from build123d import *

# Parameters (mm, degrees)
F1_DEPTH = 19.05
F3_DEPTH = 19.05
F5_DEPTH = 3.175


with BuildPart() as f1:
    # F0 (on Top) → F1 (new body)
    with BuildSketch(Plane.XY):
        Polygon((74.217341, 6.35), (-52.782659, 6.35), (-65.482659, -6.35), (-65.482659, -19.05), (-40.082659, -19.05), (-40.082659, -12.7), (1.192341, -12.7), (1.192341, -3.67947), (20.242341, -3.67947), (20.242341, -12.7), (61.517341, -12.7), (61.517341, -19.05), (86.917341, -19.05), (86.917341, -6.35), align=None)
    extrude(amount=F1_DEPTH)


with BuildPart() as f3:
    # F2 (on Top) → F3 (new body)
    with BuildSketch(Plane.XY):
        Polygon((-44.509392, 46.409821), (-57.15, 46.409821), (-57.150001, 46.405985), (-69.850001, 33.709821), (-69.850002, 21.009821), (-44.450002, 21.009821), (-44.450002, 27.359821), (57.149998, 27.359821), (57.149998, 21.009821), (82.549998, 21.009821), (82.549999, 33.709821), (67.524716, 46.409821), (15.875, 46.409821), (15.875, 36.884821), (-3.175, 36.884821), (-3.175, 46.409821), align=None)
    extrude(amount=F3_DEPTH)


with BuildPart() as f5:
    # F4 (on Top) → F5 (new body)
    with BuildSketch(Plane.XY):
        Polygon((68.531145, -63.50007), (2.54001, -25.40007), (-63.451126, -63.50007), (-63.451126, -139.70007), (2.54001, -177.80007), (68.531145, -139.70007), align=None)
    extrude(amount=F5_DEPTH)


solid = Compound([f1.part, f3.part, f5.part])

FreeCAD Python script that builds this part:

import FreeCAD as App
import Part
import Sketcher
Q = App.Units.Quantity


def add_polygon(sketch, points):
    """Adds a closed chain of lines whose ends are joined by coincident constraints."""
    first, n = sketch.GeometryCount, len(points)
    for a, b in zip(points, points[1:] + points[:1]):
        sketch.addGeometry(Part.LineSegment(App.Vector(*a, 0), App.Vector(*b, 0)), False)
    for i in range(n):
        sketch.addConstraint(Sketcher.Constraint("Coincident", first + i, 2, first + (i + 1) % n, 1))

doc = App.newDocument("Part")
params = doc.addObject("Spreadsheet::Sheet", "Params")
for row, (alias, value) in enumerate([
    ("sketch1_width", "5 in"),
    ("sketch1_width2", "1 in"),
    ("sketch1_height", "0.5 in"),
    ("sketch1_width3", "0.75 in"),
    ("sketch1_height2", "0.25 in"),
    ("pad1_length", "0.75 in"),
    ("sketch2_width", "1 in"),
    ("sketch2_width2", "4 in"),
    ("sketch2_height", "0.5 in"),
    ("sketch2_width3", "0.75 in"),
    ("sketch2_height2", "0.25 in"),
    ("pad2_length", "0.75 in"),
    ("sketch3_height", "3 in"),
    ("sketch3_length", "3 in"),
    ("pad3_length", "0.125 in"),
], start=1):
    params.set(f"A{row}", alias)
    params.set(f"B{row}", "=" + value)
    params.setAlias(f"B{row}", alias)

body = doc.addObject("PartDesign::Body", "Body")

sketch1 = doc.addObject("Sketcher::SketchObject", "Sketch")
body.addObject(sketch1)
sketch1.AttachmentSupport = (doc.XY_Plane, [""])
sketch1.MapMode = "FlatFace"
add_polygon(sketch1, [(74.217341, 6.35), (-52.782659, 6.35), (-65.482659, -6.35), (-65.482659, -19.05), (-40.082659, -19.05), (-40.082659, -12.7), (1.192341, -12.7), (1.192341, -3.67947), (20.242341, -3.67947), (20.242341, -12.7), (61.517341, -12.7), (61.517341, -19.05), (86.917341, -19.05), (86.917341, -6.35)])
sketch1.addConstraint([
    Sketcher.Constraint("Horizontal", 0),
    Sketcher.Constraint("Vertical", 2),
    Sketcher.Constraint("Horizontal", 3),
    Sketcher.Constraint("Vertical", 4),
    Sketcher.Constraint("Horizontal", 5),
    Sketcher.Constraint("Vertical", 6),
    Sketcher.Constraint("Horizontal", 7),
    Sketcher.Constraint("Vertical", 8),
    Sketcher.Constraint("Horizontal", 9),
    Sketcher.Constraint("Vertical", 10),
    Sketcher.Constraint("Horizontal", 11),
    Sketcher.Constraint("Vertical", 12),
    Sketcher.Constraint("Perpendicular", 1, 13),
    Sketcher.Constraint("Horizontal", 5, 2, 8, 2),
    Sketcher.Constraint("Horizontal", 3, 2, 10, 2),
    Sketcher.Constraint("Horizontal", 1, 2, 12, 2),
    Sketcher.Constraint("Equal", 5, 9),
    Sketcher.Constraint("Equal", 3, 11),
    Sketcher.Constraint("Equal", 1, 13),
    Sketcher.Constraint("DistanceX", 0, 2, 0, 1, Q("5 in")),
    Sketcher.Constraint("DistanceX", 3, 1, 3, 2, Q("1 in")),
    Sketcher.Constraint("DistanceY", 2, 2, 2, 1, Q("0.5 in")),
    Sketcher.Constraint("DistanceY", 2, 2, 0, 2, Q("1 in")),
    Sketcher.Constraint("DistanceX", 7, 1, 7, 2, Q("0.75 in")),
    Sketcher.Constraint("DistanceY", 4, 1, 4, 2, Q("0.25 in")),
    Sketcher.Constraint("DistanceY", 4, 2, -1, 1, Q("0.5 in")),
    Sketcher.Constraint("DistanceY", 6, 1, 6, 2, 9.02053),
    Sketcher.Constraint("DistanceX", 0, 2, -1, 1, 52.782659),
])
sketch1.setExpression("Constraints[33]", "Params.sketch1_width")
sketch1.setExpression("Constraints[34]", "Params.sketch1_width2")
sketch1.setExpression("Constraints[35]", "Params.sketch1_height")
sketch1.setExpression("Constraints[37]", "Params.sketch1_width3")
sketch1.setExpression("Constraints[38]", "Params.sketch1_height2")
pad1 = doc.addObject("PartDesign::Pad", "Pad")
body.addObject(pad1)
pad1.Profile = sketch1
pad1.setExpression("Length", "Params.pad1_length")
body2 = doc.addObject("PartDesign::Body", "Body001")

sketch2 = doc.addObject("Sketcher::SketchObject", "Sketch001")
body2.addObject(sketch2)
sketch2.AttachmentSupport = (doc.getObject("XY_Plane001"), [""])
sketch2.MapMode = "FlatFace"
add_polygon(sketch2, [(-57.15, 46.409821), (-57.150001, 46.405985), (-69.850001, 33.709821), (-69.850002, 21.009821), (-44.450002, 21.009821), (-44.450002, 27.359821), (57.149998, 27.359821), (57.149998, 21.009821), (82.549998, 21.009821), (82.549999, 33.709821), (67.524716, 46.409821), (15.875, 46.409821), (15.875, 36.884821), (-3.175, 36.884821), (-3.175, 46.409821)])
sketch2.addConstraint([
    Sketcher.Constraint("Vertical", 0),
    Sketcher.Constraint("Vertical", 2),
    Sketcher.Constraint("Horizontal", 3),
    Sketcher.Constraint("Vertical", 4),
    Sketcher.Constraint("Horizontal", 5),
    Sketcher.Constraint("Vertical", 6),
    Sketcher.Constraint("Horizontal", 7),
    Sketcher.Constraint("Vertical", 8),
    Sketcher.Constraint("Horizontal", 10),
    Sketcher.Constraint("Vertical", 11),
    Sketcher.Constraint("Horizontal", 12),
    Sketcher.Constraint("Vertical", 13),
    Sketcher.Constraint("Horizontal", 14),
    Sketcher.Constraint("Horizontal", 3, 2, 6, 2),
    Sketcher.Constraint("Horizontal", 1, 2, 8, 2),
    Sketcher.Constraint("Horizontal", 10, 2, 13, 2),
    Sketcher.Constraint("Equal", 3, 7),
    Sketcher.Constraint("DistanceX", 3, 1, 3, 2, Q("1 in")),
    Sketcher.Constraint("DistanceX", 5, 1, 5, 2, Q("4 in")),
    Sketcher.Constraint("DistanceY", 2, 2, 2, 1, Q("0.5 in")),
    Sketcher.Constraint("DistanceY", 6, 2, 9, 2, Q("1 in")),
    Sketcher.Constraint("DistanceX", 12, 2, 12, 1, Q("0.75 in")),
    Sketcher.Constraint("DistanceY", 4, 1, 4, 2, Q("0.25 in")),
    Sketcher.Constraint("DistanceX", 1, 2, 0, 2, Q("0.5 in")),
    Sketcher.Constraint("DistanceX", 14, 2, 14, 1, Q("2.125 in")),
    Sketcher.Constraint("DistanceY", 11, 2, 11, 1, Q("0.375 in")),
    Sketcher.Constraint("DistanceX", 0, 2, -1, 1, Q("2.25 in")),
    Sketcher.Constraint("Distance", 1, Q("0.707 in")),
    Sketcher.Constraint("DistanceX", 10, 2, 10, 1, 51.649716),
    Sketcher.Constraint("DistanceY", -1, 1, 1, 2, 33.709821),
])
sketch2.setExpression("Constraints[32]", "Params.sketch2_width")
sketch2.setExpression("Constraints[33]", "Params.sketch2_width2")
sketch2.setExpression("Constraints[34]", "Params.sketch2_height")
sketch2.setExpression("Constraints[36]", "Params.sketch2_width3")
sketch2.setExpression("Constraints[37]", "Params.sketch2_height2")
pad2 = doc.addObject("PartDesign::Pad", "Pad001")
body2.addObject(pad2)
pad2.Profile = sketch2
pad2.setExpression("Length", "Params.pad2_length")
body3 = doc.addObject("PartDesign::Body", "Body002")

sketch3 = doc.addObject("Sketcher::SketchObject", "Sketch002")
body3.addObject(sketch3)
sketch3.AttachmentSupport = (doc.getObject("XY_Plane002"), [""])
sketch3.MapMode = "FlatFace"
add_polygon(sketch3, [(68.531145, -63.50007), (2.54001, -25.40007), (-63.451126, -63.50007), (-63.451126, -139.70007), (2.54001, -177.80007), (68.531145, -139.70007)])
sketch3.addConstraint([
    Sketcher.Constraint("Vertical", 2),
    Sketcher.Constraint("Vertical", 5),
    Sketcher.Constraint("Parallel", 0, 3),
    Sketcher.Constraint("Parallel", 1, 4),
    Sketcher.Constraint("Horizontal", 2, 2, 4, 2),
    Sketcher.Constraint("Horizontal", 1, 2, 5, 2),
    Sketcher.Constraint("Vertical", 0, 2, 3, 2),
    Sketcher.Constraint("DistanceY", 2, 2, 2, 1, Q("3 in")),
    Sketcher.Constraint("Distance", 0, Q("3 in")),
    Sketcher.Constraint("Angle", 0, Q("150 deg")),
    Sketcher.Constraint("DistanceX", -1, 1, 0, 2, 2.54001),
    Sketcher.Constraint("DistanceY", 0, 2, -1, 1, 25.40007),
])
sketch3.setExpression("Constraints[13]", "Params.sketch3_height")
sketch3.setExpression("Constraints[14]", "Params.sketch3_length")
pad3 = doc.addObject("PartDesign::Pad", "Pad002")
body3.addObject(pad3)
pad3.Profile = sketch3
pad3.setExpression("Length", "Params.pad3_length")

doc.recompute()
